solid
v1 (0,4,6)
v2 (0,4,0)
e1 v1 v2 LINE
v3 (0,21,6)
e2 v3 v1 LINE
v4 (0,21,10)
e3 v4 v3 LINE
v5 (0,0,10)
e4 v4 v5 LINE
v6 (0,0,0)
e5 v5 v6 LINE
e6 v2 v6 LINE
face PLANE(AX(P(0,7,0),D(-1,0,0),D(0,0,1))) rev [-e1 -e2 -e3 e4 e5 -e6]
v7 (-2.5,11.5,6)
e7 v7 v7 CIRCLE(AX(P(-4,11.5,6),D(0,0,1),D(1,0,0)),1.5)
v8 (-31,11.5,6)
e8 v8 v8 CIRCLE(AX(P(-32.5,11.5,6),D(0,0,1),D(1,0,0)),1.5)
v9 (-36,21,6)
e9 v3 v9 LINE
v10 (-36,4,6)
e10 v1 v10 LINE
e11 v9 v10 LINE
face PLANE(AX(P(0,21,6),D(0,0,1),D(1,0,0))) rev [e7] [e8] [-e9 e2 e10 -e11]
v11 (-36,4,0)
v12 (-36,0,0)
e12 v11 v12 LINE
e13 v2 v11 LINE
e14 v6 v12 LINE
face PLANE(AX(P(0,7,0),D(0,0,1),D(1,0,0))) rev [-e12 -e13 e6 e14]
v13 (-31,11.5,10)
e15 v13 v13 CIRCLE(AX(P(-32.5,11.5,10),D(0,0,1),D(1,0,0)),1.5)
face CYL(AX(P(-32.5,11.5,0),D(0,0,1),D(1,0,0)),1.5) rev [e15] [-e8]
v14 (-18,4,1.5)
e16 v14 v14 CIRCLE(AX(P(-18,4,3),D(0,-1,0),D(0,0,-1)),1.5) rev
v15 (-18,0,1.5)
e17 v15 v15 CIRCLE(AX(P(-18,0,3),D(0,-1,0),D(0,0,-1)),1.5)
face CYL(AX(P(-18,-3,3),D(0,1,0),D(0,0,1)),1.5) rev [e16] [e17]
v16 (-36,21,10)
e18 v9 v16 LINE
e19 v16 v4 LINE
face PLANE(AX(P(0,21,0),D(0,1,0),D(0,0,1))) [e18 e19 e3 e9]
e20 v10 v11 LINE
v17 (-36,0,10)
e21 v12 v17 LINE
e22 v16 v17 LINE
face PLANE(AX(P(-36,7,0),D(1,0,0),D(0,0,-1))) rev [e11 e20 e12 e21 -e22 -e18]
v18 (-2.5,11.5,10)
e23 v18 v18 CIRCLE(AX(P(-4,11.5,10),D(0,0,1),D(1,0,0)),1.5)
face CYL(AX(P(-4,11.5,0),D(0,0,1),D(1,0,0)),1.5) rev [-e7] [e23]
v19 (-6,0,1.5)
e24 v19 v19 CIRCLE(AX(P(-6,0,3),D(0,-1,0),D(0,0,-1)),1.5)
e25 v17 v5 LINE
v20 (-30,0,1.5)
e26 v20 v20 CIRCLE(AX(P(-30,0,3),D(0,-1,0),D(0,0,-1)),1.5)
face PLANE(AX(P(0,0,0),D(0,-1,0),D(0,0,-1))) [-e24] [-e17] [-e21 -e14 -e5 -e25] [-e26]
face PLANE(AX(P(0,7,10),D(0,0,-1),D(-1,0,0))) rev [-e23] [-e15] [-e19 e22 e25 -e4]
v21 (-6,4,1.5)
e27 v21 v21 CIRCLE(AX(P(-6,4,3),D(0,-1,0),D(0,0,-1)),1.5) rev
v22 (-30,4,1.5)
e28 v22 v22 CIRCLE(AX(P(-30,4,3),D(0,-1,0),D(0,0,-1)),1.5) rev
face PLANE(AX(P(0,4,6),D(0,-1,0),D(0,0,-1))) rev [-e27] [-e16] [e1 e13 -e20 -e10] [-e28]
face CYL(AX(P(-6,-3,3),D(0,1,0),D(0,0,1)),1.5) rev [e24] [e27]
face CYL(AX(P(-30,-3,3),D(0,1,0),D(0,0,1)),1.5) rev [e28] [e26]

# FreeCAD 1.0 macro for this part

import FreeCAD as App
import Part
import Sketcher

V = App.Vector
Q = App.Units.Quantity

doc = App.newDocument("Part")
body = doc.addObject("PartDesign::Body", "Body")

# Sketch on XZ plane
sketch1 = doc.addObject("Sketcher::SketchObject", "Sketch")
body.addObject(sketch1)
sketch1.AttachmentSupport = (doc.XZ_Plane, [""])
sketch1.MapMode = "FlatFace"
sketch1.addGeometry([
    Part.LineSegment(V(-36, 0, 0), V(-36, 10, 0)),
    Part.LineSegment(V(-36, 10, 0), V(0, 10, 0)),
    Part.LineSegment(V(0, 10, 0), V(0, 0, 0)),
    Part.LineSegment(V(0, 0, 0), V(-36, 0, 0)),
], False)
sketch1.addConstraint([
    Sketcher.Constraint("Coincident", 0, 2, 1, 1),
    Sketcher.Constraint("Coincident", 1, 2, 2, 1),
    Sketcher.Constraint("Coincident", 2, 2, 3, 1),
    Sketcher.Constraint("Coincident", 3, 2, 0, 1),
    Sketcher.Constraint("Vertical", 0),
    Sketcher.Constraint("Horizontal", 1),
    Sketcher.Constraint("Vertical", 2),
    Sketcher.Constraint("Horizontal", 3),
    Sketcher.Constraint("Coincident", 2, 2, -1, 1),
    Sketcher.Constraint("DistanceX", 1, 1, 1, 2, Q("36 mm")),
    Sketcher.Constraint("DistanceY", 0, 1, 0, 2, Q("10 mm")),
])
pad1 = doc.addObject("PartDesign::Pad", "Pad")
body.addObject(pad1)
pad1.Profile = sketch1
pad1.Length = 7
pad1.Reversed = True

# Sketch on XZ plane
sketch2 = doc.addObject("Sketcher::SketchObject", "Sketch001")
body.addObject(sketch2)
sketch2.AttachmentSupport = (doc.XZ_Plane, [""])
sketch2.MapMode = "FlatFace"
sketch2.AttachmentOffset = App.Placement(V(0, 0, -7), App.Rotation())
sketch2.addGeometry([
    Part.LineSegment(V(-36, 6, 0), V(-36, 10, 0)),
    Part.LineSegment(V(-36, 10, 0), V(0, 10, 0)),
    Part.LineSegment(V(0, 10, 0), V(0, 6, 0)),
    Part.LineSegment(V(0, 6, 0), V(-36, 6, 0)),
], False)
sketch2.addConstraint([
    Sketcher.Constraint("Coincident", 0, 2, 1, 1),
    Sketcher.Constraint("Coincident", 1, 2, 2, 1),
    Sketcher.Constraint("Coincident", 2, 2, 3, 1),
    Sketcher.Constraint("Coincident", 3, 2, 0, 1),
    Sketcher.Constraint("Vertical", 0),
    Sketcher.Constraint("Horizontal", 1),
    Sketcher.Constraint("Vertical", 2),
    Sketcher.Constraint("Horizontal", 3),
    Sketcher.Constraint("PointOnObject", 1, 2, -2),
    Sketcher.Constraint("DistanceX", 1, 1, 1, 2, Q("36 mm")),
    Sketcher.Constraint("DistanceY", 0, 1, 0, 2, Q("4 mm")),
    Sketcher.Constraint("DistanceY", -1, 1, 0, 2, Q("10 mm")),
])
pad2 = doc.addObject("PartDesign::Pad", "Pad001")
body.addObject(pad2)
pad2.Profile = sketch2
pad2.Length = 14
pad2.Reversed = True

# Sketch on XZ plane
sketch3 = doc.addObject("Sketcher::SketchObject", "Sketch002")
body.addObject(sketch3)
sketch3.AttachmentSupport = (doc.XZ_Plane, [""])
sketch3.MapMode = "FlatFace"
sketch3.AttachmentOffset = App.Placement(V(0, 0, -7), App.Rotation())
sketch3.addGeometry([
    Part.Circle(V(-30, 3, 0), V(0, 0, 1), 1.5),
    Part.Circle(V(-18, 3, 0), V(0, 0, 1), 1.5),
    Part.Circle(V(-6, 3, 0), V(0, 0, 1), 1.5),
], False)
sketch3.addConstraint([
    Sketcher.Constraint("Equal", 0, 1),
    Sketcher.Constraint("Equal", 1, 2),
    Sketcher.Constraint("Horizontal", 0, 3, 1, 3),
    Sketcher.Constraint("Horizontal", 1, 3, 2, 3),
    Sketcher.Constraint("Diameter", 0, Q("3 mm")),
    Sketcher.Constraint("DistanceX", 0, 3, -1, 1, Q("30 mm")),
    Sketcher.Constraint("DistanceY", -1, 1, 0, 3, Q("3 mm")),
    Sketcher.Constraint("DistanceX", 1, 3, -1, 1, Q("18 mm")),
    Sketcher.Constraint("DistanceX", 2, 3, -1, 1, Q("6 mm")),
])
pocket1 = doc.addObject("PartDesign::Pocket", "Pocket")
body.addObject(pocket1)
pocket1.Profile = sketch3
pocket1.Length = 10
pocket1.Reversed = True

# Sketch on XY plane
sketch4 = doc.addObject("Sketcher::SketchObject", "Sketch003")
body.addObject(sketch4)
sketch4.AttachmentSupport = (doc.XY_Plane, [""])
sketch4.MapMode = "FlatFace"
sketch4.AttachmentOffset = App.Placement(V(0, 0, 10), App.Rotation())
sketch4.addGeometry([
    Part.Circle(V(-32.5, 11.5, 0), V(0, 0, 1), 1.5),
    Part.Circle(V(-4, 11.5, 0), V(0, 0, 1), 1.5),
], False)
sketch4.addConstraint([
    Sketcher.Constraint("Equal", 0, 1),
    Sketcher.Constraint("Horizontal", 0, 3, 1, 3),
    Sketcher.Constraint("Diameter", 0, Q("3 mm")),
    Sketcher.Constraint("DistanceX", 1, 3, -1, 1, Q("4 mm")),
    Sketcher.Constraint("DistanceX", 0, 3, -1, 1, Q("32.5 mm")),
    Sketcher.Constraint("DistanceY", -1, 1, 0, 3, Q("11.5 mm")),
])
pocket2 = doc.addObject("PartDesign::Pocket", "Pocket001")
body.addObject(pocket2)
pocket2.Profile = sketch4
pocket2.Length = 10

# Sketch on XY plane
sketch5 = doc.addObject("Sketcher::SketchObject", "Sketch004")
body.addObject(sketch5)
sketch5.AttachmentSupport = (doc.XY_Plane, [""])
sketch5.MapMode = "FlatFace"
sketch5.addGeometry([
    Part.LineSegment(V(0, 7, 0), V(0, 4, 0)),
    Part.LineSegment(V(0, 4, 0), V(-36, 4, 0)),
    Part.LineSegment(V(-36, 4, 0), V(-36, 7, 0)),
    Part.LineSegment(V(-36, 7, 0), V(0, 7, 0)),
], False)
sketch5.addConstraint([
    Sketcher.Constraint("Coincident", 0, 2, 1, 1),
    Sketcher.Constraint("Coincident", 1, 2, 2, 1),
    Sketcher.Constraint("Coincident", 2, 2, 3, 1),
    Sketcher.Constraint("Coincident", 3, 2, 0, 1),
    Sketcher.Constraint("Vertical", 0),
    Sketcher.Constraint("Horizontal", 1),
    Sketcher.Constraint("Vertical", 2),
    Sketcher.Constraint("Horizontal", 3),
    Sketcher.Constraint("PointOnObject", 0, 2, -2),
    Sketcher.Constraint("DistanceX", 1, 2, 1, 1, Q("36 mm")),
    Sketcher.Constraint("DistanceY", 0, 2, 0, 1, Q("3 mm")),
    Sketcher.Constraint("DistanceY", -1, 1, 0, 2, Q("4 mm")),
])
pocket3 = doc.addObject("PartDesign::Pocket", "Pocket002")
body.addObject(pocket3)
pocket3.Profile = sketch5
pocket3.Length = 6
pocket3.Reversed = True

doc.recompute()
